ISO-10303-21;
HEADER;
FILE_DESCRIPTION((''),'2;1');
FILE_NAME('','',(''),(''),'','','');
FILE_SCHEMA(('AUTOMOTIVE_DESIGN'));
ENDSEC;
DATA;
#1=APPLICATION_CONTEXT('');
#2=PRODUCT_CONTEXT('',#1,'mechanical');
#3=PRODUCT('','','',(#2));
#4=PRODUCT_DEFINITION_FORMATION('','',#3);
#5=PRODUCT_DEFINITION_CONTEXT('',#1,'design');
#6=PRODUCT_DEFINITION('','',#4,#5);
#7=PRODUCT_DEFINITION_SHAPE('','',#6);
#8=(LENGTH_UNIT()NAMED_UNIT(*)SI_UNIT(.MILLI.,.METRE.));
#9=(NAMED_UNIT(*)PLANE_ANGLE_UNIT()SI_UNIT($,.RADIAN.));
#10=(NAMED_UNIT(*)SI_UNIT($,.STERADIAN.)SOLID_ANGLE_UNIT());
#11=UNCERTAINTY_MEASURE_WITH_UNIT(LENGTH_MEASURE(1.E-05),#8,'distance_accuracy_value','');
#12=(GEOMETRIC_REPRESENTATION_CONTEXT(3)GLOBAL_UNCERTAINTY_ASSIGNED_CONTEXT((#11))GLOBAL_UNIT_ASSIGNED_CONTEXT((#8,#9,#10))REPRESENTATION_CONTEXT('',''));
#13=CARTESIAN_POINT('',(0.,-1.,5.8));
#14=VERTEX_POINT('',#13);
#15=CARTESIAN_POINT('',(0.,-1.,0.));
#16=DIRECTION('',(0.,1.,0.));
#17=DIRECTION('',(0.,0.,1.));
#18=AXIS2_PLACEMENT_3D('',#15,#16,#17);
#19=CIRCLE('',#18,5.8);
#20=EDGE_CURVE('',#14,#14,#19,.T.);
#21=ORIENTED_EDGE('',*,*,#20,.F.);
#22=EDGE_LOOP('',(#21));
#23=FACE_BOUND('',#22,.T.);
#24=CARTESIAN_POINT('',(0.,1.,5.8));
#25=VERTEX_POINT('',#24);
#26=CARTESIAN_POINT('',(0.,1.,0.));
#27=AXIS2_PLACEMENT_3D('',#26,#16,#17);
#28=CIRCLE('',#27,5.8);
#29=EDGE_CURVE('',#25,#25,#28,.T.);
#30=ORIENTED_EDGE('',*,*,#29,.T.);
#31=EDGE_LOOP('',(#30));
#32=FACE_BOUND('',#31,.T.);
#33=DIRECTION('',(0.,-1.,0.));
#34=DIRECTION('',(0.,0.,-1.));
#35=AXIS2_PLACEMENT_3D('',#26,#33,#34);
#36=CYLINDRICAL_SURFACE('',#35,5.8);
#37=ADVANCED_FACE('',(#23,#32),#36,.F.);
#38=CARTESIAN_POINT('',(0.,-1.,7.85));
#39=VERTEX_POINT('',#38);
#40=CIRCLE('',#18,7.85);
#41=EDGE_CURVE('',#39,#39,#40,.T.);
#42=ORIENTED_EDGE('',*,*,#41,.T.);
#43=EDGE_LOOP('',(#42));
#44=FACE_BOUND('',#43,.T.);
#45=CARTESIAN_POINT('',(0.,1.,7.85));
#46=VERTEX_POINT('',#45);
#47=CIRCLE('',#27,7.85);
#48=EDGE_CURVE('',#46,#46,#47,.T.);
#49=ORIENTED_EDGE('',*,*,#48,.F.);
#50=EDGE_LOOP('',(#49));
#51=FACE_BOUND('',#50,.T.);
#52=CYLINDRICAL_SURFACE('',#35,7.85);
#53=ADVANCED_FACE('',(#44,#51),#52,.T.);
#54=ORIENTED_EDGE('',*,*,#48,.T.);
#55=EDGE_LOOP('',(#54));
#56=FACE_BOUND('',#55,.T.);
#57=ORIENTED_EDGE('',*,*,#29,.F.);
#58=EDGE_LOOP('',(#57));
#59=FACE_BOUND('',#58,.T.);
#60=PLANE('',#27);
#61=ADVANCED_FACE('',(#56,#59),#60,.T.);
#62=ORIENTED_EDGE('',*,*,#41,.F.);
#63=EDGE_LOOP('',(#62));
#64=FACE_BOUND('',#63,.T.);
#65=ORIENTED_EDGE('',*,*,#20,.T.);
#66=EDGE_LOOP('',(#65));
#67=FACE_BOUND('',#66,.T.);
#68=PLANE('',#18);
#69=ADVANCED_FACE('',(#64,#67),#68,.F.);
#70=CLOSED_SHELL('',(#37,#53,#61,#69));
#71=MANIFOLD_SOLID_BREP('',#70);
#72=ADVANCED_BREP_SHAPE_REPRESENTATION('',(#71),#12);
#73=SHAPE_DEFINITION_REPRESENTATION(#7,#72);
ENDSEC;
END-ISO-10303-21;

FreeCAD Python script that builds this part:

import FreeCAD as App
import Part
import Sketcher

doc = App.newDocument("Part")
body = doc.addObject("PartDesign::Body", "Body")

# Sketch on XZ plane
sketch1 = body.newObject("Sketcher::SketchObject", "Sketch")
sketch1.AttachmentSupport = (doc.getObject("XZ_Plane"), [""])
sketch1.MapMode = "FlatFace"
sketch1.AttachmentOffset = App.Placement(App.Vector(0, 0, 1), App.Rotation())
sketch1.addGeometry(Part.Circle(App.Vector(0, 0, 0), App.Vector(0, 0, 1), 7.85), False)
sketch1.addGeometry(Part.Circle(App.Vector(0, 0, 0), App.Vector(0, 0, 1), 5.8), False)
sketch1.addConstraint(Sketcher.Constraint("Coincident", 0, 3, -1, 1))
sketch1.addConstraint(Sketcher.Constraint("Coincident", 1, 3, -1, 1))
sketch1.addConstraint(Sketcher.Constraint("Diameter", 0, 15.7))
sketch1.addConstraint(Sketcher.Constraint("Diameter", 1, 11.6))
pad1 = body.newObject("PartDesign::Pad", "Pad")
pad1.Profile = sketch1
pad1.Length = 2
pad1.Reversed = True

doc.recompute()
